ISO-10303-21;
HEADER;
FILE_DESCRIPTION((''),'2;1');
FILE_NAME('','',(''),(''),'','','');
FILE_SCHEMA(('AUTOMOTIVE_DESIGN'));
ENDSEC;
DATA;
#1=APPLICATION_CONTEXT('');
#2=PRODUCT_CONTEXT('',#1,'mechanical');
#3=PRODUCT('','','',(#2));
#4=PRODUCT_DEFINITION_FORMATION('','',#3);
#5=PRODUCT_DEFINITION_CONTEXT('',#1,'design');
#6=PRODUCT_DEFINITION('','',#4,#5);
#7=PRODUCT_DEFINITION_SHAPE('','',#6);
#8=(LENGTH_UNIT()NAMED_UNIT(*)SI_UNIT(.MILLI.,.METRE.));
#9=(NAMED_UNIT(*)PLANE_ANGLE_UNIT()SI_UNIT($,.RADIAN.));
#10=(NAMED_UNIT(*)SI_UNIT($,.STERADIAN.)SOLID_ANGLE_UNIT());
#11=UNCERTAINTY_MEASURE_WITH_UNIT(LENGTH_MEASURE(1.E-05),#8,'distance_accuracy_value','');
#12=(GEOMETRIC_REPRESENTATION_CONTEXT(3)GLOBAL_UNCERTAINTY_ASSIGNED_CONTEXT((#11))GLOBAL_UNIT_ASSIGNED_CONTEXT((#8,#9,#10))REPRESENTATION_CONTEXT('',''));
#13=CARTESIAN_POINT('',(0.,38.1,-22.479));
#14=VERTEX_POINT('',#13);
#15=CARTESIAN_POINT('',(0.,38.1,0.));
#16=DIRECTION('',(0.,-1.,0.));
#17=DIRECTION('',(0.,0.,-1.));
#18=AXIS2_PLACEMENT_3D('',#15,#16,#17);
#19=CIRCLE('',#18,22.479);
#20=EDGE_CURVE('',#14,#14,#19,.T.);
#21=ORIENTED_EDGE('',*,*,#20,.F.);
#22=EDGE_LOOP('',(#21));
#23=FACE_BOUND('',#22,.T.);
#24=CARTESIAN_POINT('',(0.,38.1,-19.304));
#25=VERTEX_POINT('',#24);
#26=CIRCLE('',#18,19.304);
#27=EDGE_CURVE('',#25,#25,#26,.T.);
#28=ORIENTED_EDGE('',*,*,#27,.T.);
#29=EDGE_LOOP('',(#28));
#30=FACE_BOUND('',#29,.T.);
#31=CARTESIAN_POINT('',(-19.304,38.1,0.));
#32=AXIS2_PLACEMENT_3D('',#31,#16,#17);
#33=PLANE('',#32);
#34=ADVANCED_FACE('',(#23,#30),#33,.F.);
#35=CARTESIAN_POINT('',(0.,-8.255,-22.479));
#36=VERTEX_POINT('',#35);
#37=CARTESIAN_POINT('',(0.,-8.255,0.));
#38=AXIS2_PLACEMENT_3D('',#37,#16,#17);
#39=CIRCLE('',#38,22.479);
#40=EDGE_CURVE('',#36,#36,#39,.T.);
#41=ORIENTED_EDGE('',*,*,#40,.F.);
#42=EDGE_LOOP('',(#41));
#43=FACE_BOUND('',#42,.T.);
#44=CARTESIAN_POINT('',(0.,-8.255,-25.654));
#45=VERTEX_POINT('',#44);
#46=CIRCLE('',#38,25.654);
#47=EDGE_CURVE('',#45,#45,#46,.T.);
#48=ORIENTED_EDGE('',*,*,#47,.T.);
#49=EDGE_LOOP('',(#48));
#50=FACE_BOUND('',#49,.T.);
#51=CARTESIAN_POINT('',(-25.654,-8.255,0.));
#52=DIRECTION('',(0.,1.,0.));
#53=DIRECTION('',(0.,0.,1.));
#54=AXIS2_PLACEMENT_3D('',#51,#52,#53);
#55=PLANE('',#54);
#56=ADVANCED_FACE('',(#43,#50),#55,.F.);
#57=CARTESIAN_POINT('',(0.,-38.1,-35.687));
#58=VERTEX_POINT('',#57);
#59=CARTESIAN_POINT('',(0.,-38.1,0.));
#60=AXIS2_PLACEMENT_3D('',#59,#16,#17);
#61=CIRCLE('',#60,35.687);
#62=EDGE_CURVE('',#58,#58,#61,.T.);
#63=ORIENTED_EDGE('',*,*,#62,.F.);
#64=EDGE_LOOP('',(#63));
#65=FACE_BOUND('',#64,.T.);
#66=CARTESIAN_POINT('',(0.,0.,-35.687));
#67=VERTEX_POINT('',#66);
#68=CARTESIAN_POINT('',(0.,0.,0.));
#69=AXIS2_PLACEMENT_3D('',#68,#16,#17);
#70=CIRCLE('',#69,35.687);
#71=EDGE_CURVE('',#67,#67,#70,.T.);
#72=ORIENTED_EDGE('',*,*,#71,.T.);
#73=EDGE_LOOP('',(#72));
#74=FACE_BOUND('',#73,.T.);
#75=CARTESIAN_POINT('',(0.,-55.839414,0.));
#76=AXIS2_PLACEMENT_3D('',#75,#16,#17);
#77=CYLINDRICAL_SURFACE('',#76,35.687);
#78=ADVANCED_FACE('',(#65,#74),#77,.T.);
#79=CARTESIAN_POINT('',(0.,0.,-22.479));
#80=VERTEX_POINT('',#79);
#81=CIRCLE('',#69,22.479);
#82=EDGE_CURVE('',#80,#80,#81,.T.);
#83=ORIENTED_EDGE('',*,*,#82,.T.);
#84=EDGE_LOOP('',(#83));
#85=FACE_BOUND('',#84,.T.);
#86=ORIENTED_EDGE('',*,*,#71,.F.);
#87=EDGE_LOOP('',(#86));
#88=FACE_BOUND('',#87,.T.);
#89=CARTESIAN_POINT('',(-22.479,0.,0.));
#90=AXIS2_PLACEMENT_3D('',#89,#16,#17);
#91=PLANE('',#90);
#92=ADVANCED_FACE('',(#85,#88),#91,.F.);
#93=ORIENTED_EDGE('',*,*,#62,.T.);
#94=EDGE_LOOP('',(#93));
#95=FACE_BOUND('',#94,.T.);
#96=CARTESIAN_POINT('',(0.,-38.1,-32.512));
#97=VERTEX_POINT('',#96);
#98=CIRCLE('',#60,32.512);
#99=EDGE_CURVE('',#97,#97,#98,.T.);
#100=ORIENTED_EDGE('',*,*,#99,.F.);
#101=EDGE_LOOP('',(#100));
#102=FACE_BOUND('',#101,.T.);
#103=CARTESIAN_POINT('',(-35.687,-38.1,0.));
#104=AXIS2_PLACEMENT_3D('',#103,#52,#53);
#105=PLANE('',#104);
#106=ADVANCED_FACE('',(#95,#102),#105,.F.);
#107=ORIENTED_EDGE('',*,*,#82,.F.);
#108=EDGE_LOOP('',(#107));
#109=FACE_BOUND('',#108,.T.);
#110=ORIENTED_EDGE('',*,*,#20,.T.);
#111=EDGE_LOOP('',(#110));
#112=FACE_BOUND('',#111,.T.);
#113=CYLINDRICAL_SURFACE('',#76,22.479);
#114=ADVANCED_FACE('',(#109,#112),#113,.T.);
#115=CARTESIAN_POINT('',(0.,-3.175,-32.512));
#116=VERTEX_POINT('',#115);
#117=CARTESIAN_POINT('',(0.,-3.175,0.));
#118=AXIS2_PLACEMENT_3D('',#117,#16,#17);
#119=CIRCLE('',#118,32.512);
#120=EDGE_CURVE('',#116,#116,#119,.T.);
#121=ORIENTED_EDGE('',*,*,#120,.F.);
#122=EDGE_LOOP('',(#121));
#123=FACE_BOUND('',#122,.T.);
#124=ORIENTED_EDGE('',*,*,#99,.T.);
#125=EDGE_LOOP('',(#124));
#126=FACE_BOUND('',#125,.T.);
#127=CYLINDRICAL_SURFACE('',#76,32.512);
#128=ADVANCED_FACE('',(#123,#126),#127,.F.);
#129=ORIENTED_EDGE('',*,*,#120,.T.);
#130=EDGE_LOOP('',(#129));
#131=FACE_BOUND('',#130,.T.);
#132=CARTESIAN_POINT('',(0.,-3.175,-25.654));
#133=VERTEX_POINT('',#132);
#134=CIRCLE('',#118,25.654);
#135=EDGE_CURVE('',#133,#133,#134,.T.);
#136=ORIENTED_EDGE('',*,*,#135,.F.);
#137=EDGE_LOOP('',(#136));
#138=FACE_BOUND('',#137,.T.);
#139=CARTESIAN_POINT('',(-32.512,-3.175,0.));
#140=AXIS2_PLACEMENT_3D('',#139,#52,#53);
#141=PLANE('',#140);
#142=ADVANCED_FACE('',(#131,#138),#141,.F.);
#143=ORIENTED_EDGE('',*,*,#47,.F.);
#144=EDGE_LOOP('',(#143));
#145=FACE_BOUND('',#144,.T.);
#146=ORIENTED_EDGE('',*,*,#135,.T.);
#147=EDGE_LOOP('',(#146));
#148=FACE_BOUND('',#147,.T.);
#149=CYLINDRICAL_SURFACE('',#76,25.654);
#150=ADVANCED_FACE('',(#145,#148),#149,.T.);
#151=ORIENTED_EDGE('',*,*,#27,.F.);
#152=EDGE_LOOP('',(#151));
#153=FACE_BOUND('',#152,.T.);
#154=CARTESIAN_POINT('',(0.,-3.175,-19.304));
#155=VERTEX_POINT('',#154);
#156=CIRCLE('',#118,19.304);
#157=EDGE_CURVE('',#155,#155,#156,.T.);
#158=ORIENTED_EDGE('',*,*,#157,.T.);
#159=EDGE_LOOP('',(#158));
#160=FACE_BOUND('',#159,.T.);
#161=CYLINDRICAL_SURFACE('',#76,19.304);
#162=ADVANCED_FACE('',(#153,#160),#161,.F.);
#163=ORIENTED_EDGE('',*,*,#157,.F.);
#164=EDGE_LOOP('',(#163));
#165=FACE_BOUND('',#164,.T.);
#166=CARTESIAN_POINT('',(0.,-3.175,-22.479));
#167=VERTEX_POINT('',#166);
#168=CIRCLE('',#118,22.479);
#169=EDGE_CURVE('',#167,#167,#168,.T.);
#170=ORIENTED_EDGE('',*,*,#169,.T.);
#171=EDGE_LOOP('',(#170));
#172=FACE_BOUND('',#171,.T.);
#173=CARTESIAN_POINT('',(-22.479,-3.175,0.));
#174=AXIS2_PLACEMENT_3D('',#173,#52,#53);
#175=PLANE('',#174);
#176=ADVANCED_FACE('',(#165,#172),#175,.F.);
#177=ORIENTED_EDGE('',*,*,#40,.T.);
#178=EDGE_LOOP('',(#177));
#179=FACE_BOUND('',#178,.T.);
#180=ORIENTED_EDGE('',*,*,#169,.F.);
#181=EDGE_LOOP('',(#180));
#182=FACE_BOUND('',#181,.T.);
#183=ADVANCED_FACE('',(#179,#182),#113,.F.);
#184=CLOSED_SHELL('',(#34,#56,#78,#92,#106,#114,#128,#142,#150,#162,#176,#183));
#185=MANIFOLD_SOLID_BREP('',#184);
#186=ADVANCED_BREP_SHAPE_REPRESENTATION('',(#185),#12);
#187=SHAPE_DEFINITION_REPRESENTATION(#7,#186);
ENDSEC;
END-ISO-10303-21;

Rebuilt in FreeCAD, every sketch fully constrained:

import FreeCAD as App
import Part
import Sketcher
from FreeCAD import Vector
Q = App.Units.Quantity

doc = App.newDocument("Part")
body = doc.addObject("PartDesign::Body", "Body")

# Sketch on XY plane
sketch1 = body.newObject("Sketcher::SketchObject", "Sketch")
sketch1.AttachmentSupport = (doc.getObject("XY_Plane"), [""])
sketch1.MapMode = "FlatFace"
sketch1.addGeometry([
    Part.LineSegment(Vector(-22.479, 38.1, 0), Vector(-22.479, 0, 0)),  # 0
    Part.LineSegment(Vector(-22.479, 0, 0), Vector(-35.687, 0, 0)),  # 1
    Part.LineSegment(Vector(-35.687, 0, 0), Vector(-35.687, -38.1, 0)),  # 2
    Part.LineSegment(Vector(-35.687, -38.1, 0), Vector(-32.512, -38.1, 0)),  # 3
    Part.LineSegment(Vector(-32.512, -38.1, 0), Vector(-32.512, -3.175, 0)),  # 4
    Part.LineSegment(Vector(-32.512, -3.175, 0), Vector(-25.654, -3.175, 0)),  # 5
    Part.LineSegment(Vector(-25.654, -3.175, 0), Vector(-25.654, -8.255, 0)),  # 6
    Part.LineSegment(Vector(-25.654, -8.255, 0), Vector(-22.479, -8.255, 0)),  # 7
    Part.LineSegment(Vector(-22.479, -8.255, 0), Vector(-22.479, -3.175, 0)),  # 8
    Part.LineSegment(Vector(-22.479, -3.175, 0), Vector(-19.304, -3.175, 0)),  # 9
    Part.LineSegment(Vector(-19.304, -3.175, 0), Vector(-19.304, 38.1, 0)),  # 10
    Part.LineSegment(Vector(-19.304, 38.1, 0), Vector(-22.479, 38.1, 0)),  # 11
], False)
sketch1.addConstraint([
    Sketcher.Constraint("Coincident", 0, 2, 1, 1),
    Sketcher.Constraint("Coincident", 1, 2, 2, 1),
    Sketcher.Constraint("Coincident", 2, 2, 3, 1),
    Sketcher.Constraint("Coincident", 3, 2, 4, 1),
    Sketcher.Constraint("Coincident", 4, 2, 5, 1),
    Sketcher.Constraint("Coincident", 5, 2, 6, 1),
    Sketcher.Constraint("Coincident", 6, 2, 7, 1),
    Sketcher.Constraint("Coincident", 7, 2, 8, 1),
    Sketcher.Constraint("Coincident", 8, 2, 9, 1),
    Sketcher.Constraint("Coincident", 9, 2, 10, 1),
    Sketcher.Constraint("Coincident", 10, 2, 11, 1),
    Sketcher.Constraint("Coincident", 11, 2, 0, 1),
    Sketcher.Constraint("Vertical", 0),
    Sketcher.Constraint("Horizontal", 1),
    Sketcher.Constraint("Vertical", 2),
    Sketcher.Constraint("Horizontal", 3),
    Sketcher.Constraint("Vertical", 4),
    Sketcher.Constraint("Horizontal", 5),
    Sketcher.Constraint("Vertical", 6),
    Sketcher.Constraint("Horizontal", 7),
    Sketcher.Constraint("Vertical", 8),
    Sketcher.Constraint("Horizontal", 9),
    Sketcher.Constraint("Vertical", 10),
    Sketcher.Constraint("Horizontal", 11),
    Sketcher.Constraint("PointOnObject", 0, 2, -1),
    Sketcher.Constraint("Horizontal", 5, 2, 8, 2),
    Sketcher.Constraint("Vertical", 0, 2, 7, 2),
    Sketcher.Constraint("Equal", 3, 7),
    Sketcher.Constraint("Equal", 7, 9),
    Sketcher.Constraint("Equal", 0, 2),
    Sketcher.Constraint("DistanceY", 0, 2, 0, 1, Q("1.5 in")),
    Sketcher.Constraint("DistanceY", 6, 2, 6, 1, Q("0.2 in")),
    Sketcher.Constraint("DistanceX", 1, 2, 1, 1, Q("0.52 in")),
    Sketcher.Constraint("DistanceX", 5, 1, 5, 2, Q("0.27 in")),
    Sketcher.Constraint("DistanceY", 4, 1, 4, 2, Q("1.375 in")),
    Sketcher.Constraint("DistanceX", 3, 2, -1, 1, Q("1.28 in")),
])
revolution = body.newObject("PartDesign::Revolution", "Revolution")
revolution.Profile = sketch1
revolution.ReferenceAxis = (sketch1, ["V_Axis"])
revolution.Angle = 360

doc.recompute()
